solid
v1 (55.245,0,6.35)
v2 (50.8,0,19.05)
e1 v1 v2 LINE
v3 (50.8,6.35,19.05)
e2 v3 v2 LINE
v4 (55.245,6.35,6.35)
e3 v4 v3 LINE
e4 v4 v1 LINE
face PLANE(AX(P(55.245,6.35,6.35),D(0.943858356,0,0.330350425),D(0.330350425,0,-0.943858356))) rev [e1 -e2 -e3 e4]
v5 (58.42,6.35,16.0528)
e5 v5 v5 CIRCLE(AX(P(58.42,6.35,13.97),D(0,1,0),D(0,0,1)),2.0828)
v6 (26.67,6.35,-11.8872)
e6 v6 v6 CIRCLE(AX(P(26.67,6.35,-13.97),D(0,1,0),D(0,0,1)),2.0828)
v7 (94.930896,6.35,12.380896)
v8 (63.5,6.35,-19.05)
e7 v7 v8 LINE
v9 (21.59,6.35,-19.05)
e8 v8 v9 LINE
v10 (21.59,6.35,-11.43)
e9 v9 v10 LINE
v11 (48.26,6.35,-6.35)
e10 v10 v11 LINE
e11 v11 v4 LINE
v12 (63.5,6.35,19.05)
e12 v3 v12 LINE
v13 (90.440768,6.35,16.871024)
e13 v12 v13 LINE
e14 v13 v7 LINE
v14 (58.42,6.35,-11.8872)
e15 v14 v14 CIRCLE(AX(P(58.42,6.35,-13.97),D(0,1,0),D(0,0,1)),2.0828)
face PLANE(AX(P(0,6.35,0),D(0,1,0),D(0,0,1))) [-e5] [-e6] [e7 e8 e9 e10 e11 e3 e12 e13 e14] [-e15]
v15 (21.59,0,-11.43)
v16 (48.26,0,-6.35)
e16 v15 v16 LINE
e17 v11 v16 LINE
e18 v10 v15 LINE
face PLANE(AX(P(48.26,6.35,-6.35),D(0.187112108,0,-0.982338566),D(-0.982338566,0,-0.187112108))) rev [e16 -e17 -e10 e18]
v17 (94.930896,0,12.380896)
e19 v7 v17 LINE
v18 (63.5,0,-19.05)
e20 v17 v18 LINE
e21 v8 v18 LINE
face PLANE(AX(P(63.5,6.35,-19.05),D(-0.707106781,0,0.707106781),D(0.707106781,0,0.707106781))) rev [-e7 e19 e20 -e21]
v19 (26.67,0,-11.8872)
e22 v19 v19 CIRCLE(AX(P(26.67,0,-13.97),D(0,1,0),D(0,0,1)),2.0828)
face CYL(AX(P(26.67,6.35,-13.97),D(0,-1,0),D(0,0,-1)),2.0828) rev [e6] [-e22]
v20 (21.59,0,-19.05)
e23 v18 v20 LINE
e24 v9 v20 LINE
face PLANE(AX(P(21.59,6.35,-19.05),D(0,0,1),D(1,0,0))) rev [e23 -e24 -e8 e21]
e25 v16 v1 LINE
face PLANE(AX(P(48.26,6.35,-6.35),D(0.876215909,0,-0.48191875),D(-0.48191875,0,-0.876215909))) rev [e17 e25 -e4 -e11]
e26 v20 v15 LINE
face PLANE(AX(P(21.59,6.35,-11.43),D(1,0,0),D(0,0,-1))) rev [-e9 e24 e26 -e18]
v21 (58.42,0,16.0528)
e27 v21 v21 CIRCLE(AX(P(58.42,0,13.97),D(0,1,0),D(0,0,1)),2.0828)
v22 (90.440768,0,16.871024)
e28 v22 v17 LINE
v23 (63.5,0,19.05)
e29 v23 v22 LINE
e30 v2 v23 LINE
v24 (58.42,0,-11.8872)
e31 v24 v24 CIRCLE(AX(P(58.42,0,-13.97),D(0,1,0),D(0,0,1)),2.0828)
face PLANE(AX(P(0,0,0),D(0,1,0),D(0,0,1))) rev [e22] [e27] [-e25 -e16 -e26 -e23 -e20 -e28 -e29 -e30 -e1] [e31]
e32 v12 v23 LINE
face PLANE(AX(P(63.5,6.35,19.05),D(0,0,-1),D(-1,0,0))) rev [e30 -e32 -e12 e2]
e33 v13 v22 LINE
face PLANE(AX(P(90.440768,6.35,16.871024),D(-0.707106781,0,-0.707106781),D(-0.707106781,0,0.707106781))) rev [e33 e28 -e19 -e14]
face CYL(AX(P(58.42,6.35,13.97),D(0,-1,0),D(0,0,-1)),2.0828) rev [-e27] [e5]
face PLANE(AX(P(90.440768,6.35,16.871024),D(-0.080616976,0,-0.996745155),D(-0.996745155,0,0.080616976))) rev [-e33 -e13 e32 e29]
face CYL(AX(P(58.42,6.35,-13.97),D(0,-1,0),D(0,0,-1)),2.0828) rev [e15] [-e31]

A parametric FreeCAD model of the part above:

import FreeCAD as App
import Part
import Sketcher
from FreeCAD import Vector
Q = App.Units.Quantity


def add_polygon(sketch, points):
    """Adds a closed chain of lines whose ends are joined by coincident constraints."""
    first, n = sketch.GeometryCount, len(points)
    for a, b in zip(points, points[1:] + points[:1]):
        sketch.addGeometry(Part.LineSegment(App.Vector(*a, 0), App.Vector(*b, 0)), False)
    for i in range(n):
        sketch.addConstraint(Sketcher.Constraint("Coincident", first + i, 2, first + (i + 1) % n, 1))

doc = App.newDocument("Part")
params = doc.addObject("Spreadsheet::Sheet", "Params")
for row, (alias, value) in enumerate([
    ("sketch1_diameter", "0.164 in"),
    ("sketch1_width", "0.5 in"),
    ("sketch1_height", "0.3 in"),
    ("sketch1_width2", "1.65 in"),
    ("sketch1_length", "1.75 in"),
    ("pad1_length", "0.25 in"),
], start=1):
    params.set(f"A{row}", alias)
    params.set(f"B{row}", "=" + value)
    params.setAlias(f"B{row}", alias)

body = doc.addObject("PartDesign::Body", "Body")

sketch1 = body.newObject("Sketcher::SketchObject", "Sketch")
sketch1.AttachmentSupport = (doc.getObject("XZ_Plane"), [""])
sketch1.MapMode = "FlatFace"
add_polygon(sketch1, [(94.9, 12.4), (63.5, -19.1), (21.6, -19.1), (21.6, -11.4), (48.3, -6.3), (55.2, 6.3), (50.8, 19.1), (63.5, 19.1), (90.4, 16.9)])
sketch1.addGeometry(Part.Circle(Vector(58.4, 14, 0), Vector(0, 0, 1), 2.1), False)
sketch1.addGeometry(Part.Circle(Vector(58.4, -14, 0), Vector(0, 0, 1), 2.1), False)
sketch1.addGeometry(Part.Circle(Vector(26.7, -14, 0), Vector(0, 0, 1), 2.1), False)
sketch1.addConstraint([
    Sketcher.Constraint("Horizontal", 1),
    Sketcher.Constraint("Vertical", 2),
    Sketcher.Constraint("Horizontal", 6),
    Sketcher.Constraint("Equal", 9, 10),
    Sketcher.Constraint("Equal", 10, 11),
    Sketcher.Constraint("Symmetric", 9, 3, 10, 3, -1),
    Sketcher.Constraint("Symmetric", 0, 2, 6, 2, -1),
    Sketcher.Constraint("Perpendicular", 0, 8),
    Sketcher.Constraint("Horizontal", 10, 3, 11, 3),
    Sketcher.Constraint("Diameter", 9, Q("0.164 in")),
    Sketcher.Constraint("DistanceX", 6, 1, 6, 2, Q("0.5 in")),
    Sketcher.Constraint("DistanceY", 2, 1, 2, 2, Q("0.3 in")),
    Sketcher.Constraint("DistanceX", -1, 1, 5, 2, Q("2 in")),
    Sketcher.Constraint("Angle", 0, Q("-135 deg")),
    Sketcher.Constraint("DistanceY", 2, 2, 9, 3, Q("1 in")),
    Sketcher.Constraint("DistanceY", 0, 2, 4, 2, Q("1 in")),
    Sketcher.Constraint("DistanceY", 3, 2, 5, 2, Q("1 in")),
    Sketcher.Constraint("DistanceX", 1, 2, 1, 1, Q("1.65 in")),
    Sketcher.Constraint("DistanceX", -1, 1, 9, 3, Q("2.3 in")),
    Sketcher.Constraint("DistanceX", -1, 1, 3, 2, Q("1.9 in")),
    Sketcher.Constraint("DistanceY", 10, 3, 9, 3, Q("1.1 in")),
    Sketcher.Constraint("DistanceX", 1, 2, 11, 3, Q("0.2 in")),
    Sketcher.Constraint("Distance", 0, Q("1.75 in")),
    Sketcher.Constraint("Distance", 8, Q("0.25 in")),
    Sketcher.Constraint("DistanceX", -1, 1, 4, 2, Q("2.175 in")),
])
sketch1.setExpression("Constraints[18]", "Params.sketch1_diameter")
sketch1.setExpression("Constraints[19]", "Params.sketch1_width")
sketch1.setExpression("Constraints[20]", "Params.sketch1_height")
sketch1.setExpression("Constraints[26]", "Params.sketch1_width2")
sketch1.setExpression("Constraints[31]", "Params.sketch1_length")
pad1 = body.newObject("PartDesign::Pad", "Pad")
pad1.Profile = sketch1
pad1.setExpression("Length", "Params.pad1_length")
pad1.Reversed = True

doc.recompute()
